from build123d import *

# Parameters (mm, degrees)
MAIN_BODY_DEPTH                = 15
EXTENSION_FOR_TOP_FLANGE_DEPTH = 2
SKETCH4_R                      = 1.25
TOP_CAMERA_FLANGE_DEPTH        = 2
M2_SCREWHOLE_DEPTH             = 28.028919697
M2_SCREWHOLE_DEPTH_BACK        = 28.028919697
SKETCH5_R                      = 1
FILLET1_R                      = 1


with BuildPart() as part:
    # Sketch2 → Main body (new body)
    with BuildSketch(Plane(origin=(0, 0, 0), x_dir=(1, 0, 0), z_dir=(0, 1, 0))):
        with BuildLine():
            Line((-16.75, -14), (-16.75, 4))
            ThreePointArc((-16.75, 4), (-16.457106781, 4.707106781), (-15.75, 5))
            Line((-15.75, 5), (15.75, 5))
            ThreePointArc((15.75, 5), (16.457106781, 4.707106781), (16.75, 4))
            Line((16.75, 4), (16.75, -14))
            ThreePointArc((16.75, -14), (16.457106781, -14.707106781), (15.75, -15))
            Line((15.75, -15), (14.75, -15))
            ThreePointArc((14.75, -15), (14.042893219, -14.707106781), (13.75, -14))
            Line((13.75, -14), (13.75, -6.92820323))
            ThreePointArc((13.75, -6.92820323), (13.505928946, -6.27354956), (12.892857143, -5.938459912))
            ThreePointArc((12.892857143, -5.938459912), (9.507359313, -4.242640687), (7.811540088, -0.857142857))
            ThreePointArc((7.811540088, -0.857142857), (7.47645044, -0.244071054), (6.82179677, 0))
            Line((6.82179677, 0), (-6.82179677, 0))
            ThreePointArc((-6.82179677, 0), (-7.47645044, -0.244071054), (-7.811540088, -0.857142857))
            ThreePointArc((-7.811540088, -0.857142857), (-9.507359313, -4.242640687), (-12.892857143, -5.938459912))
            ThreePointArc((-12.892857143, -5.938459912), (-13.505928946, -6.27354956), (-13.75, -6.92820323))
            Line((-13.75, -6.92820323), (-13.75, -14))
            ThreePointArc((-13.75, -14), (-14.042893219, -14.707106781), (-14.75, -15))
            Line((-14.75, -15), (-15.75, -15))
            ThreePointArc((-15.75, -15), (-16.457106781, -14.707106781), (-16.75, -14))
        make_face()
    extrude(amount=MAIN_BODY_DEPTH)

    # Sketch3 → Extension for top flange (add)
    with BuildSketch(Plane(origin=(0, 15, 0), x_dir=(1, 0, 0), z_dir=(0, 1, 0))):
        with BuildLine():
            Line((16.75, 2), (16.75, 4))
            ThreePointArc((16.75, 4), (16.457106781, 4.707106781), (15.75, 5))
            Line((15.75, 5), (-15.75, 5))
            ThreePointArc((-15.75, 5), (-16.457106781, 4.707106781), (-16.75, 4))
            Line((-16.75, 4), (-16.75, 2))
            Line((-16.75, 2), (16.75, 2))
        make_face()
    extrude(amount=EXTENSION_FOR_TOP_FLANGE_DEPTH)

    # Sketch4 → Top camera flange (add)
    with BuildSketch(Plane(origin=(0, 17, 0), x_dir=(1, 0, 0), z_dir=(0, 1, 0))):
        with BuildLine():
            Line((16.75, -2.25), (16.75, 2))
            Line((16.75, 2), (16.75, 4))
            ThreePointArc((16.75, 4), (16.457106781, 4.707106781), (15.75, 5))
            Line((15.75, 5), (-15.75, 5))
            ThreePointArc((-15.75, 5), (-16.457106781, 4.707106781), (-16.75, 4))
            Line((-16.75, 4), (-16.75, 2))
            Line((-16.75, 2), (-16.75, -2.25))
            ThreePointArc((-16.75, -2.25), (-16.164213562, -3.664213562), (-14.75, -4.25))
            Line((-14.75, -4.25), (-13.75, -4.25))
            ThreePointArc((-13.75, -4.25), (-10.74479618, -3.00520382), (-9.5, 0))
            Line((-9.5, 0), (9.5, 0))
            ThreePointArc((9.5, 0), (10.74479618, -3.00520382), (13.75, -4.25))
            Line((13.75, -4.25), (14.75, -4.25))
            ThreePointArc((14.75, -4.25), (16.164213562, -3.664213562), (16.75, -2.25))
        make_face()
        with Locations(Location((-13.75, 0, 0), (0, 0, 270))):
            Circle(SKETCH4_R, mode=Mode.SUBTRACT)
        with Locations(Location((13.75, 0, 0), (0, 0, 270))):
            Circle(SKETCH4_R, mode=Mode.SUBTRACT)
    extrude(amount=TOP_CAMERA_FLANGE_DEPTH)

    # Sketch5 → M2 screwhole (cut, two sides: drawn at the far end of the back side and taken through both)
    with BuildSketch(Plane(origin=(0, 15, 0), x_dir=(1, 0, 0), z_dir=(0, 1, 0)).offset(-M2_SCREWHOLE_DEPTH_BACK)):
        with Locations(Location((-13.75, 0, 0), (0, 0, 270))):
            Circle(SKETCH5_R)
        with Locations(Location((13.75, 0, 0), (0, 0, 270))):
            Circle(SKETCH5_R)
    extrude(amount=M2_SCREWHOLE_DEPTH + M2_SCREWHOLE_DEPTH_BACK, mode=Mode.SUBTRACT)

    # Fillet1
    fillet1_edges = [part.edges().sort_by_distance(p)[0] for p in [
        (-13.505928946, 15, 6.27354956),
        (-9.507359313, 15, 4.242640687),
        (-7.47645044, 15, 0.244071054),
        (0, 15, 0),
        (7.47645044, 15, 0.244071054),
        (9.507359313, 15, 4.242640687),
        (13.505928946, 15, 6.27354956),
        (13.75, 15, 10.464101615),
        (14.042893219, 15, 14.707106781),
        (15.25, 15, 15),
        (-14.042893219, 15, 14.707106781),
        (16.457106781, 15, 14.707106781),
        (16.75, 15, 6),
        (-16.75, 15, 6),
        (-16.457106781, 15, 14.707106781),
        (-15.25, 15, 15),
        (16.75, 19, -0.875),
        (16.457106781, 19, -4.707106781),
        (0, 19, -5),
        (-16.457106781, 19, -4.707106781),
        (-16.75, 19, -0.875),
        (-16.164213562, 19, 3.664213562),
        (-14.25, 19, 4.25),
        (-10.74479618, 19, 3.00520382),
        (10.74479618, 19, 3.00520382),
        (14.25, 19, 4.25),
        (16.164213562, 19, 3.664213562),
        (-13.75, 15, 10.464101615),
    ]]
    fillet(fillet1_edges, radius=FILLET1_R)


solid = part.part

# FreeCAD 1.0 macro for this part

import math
import FreeCAD as App
import Part
import Sketcher
from FreeCAD import Vector


def edges_at(feature, points):
    """Names of the edges that pass closest to the given points."""
    edges = feature.Shape.Edges
    near = lambda p: min(range(len(edges)), key=lambda i: edges[i].distToShape(Part.Vertex(*p))[0])
    return sorted({f"Edge{near(p) + 1}" for p in points})

doc = App.newDocument("Part")
params = doc.addObject("Spreadsheet::Sheet", "Params")
for row, (alias, value) in enumerate([
    ("sketch1_radius", "1 mm"),
    ("sketch1_radius2", "6 mm"),
    ("sketch1_width", "1 mm"),
    ("sketch1_height", "18 mm"),
    ("sketch1_width2", "31.5 mm"),
    ("pad1_length", "15 mm"),
    ("sketch2_radius", "1 mm"),
    ("sketch2_height", "2 mm"),
    ("sketch2_width", "31.5 mm"),
    ("pad2_length", "2 mm"),
    ("sketch3_radius", "1 mm"),
    ("sketch3_radius2", "2 mm"),
    ("sketch3_diameter", "2.5 mm"),
    ("sketch3_width", "1 mm"),
    ("sketch3_width2", "19 mm"),
    ("pad3_length", "2 mm"),
    ("sketch4_diameter", "2 mm"),
    ("fillet_radius", "1 mm"),
], start=1):
    params.set(f"A{row}", alias)
    params.set(f"B{row}", "=" + value)
    params.setAlias(f"B{row}", alias)

body = doc.addObject("PartDesign::Body", "Body")

# Sketch on XZ plane
sketch1 = body.newObject("Sketcher::SketchObject", "Sketch")
sketch1.AttachmentSupport = (doc.getObject("XZ_Plane"), [""])
sketch1.MapMode = "FlatFace"
sketch1.addGeometry([
    Part.LineSegment(Vector(-16.8, -4, 0), Vector(-16.8, 14, 0)),  # 0
    Part.ArcOfCircle(Part.Circle(Vector(-15.7, 14, 0), Vector(0, 0, 1), 1), math.radians(90), math.radians(180)),  # 1
    Part.LineSegment(Vector(-15.8, 15, 0), Vector(-14.8, 15, 0)),  # 2
    Part.ArcOfCircle(Part.Circle(Vector(-14.8, 14, 0), Vector(0, 0, 1), 1), math.radians(0), math.radians(90)),  # 3
    Part.LineSegment(Vector(-13.8, 14, 0), Vector(-13.8, 6.9, 0)),  # 4
    Part.ArcOfCircle(Part.Circle(Vector(-12.8, 6.9, 0), Vector(0, 0, 1), 1), math.radians(-180), math.radians(-98)),  # 5
    Part.ArcOfCircle(Part.Circle(Vector(-13.8, 0, 0), Vector(0, 0, 1), 6), math.radians(8), math.radians(82)),  # 6
    Part.ArcOfCircle(Part.Circle(Vector(-6.8, 1, 0), Vector(0, 0, 1), 1), math.radians(-172), math.radians(-90)),  # 7
    Part.LineSegment(Vector(-6.8, 0, 0), Vector(6.8, 0, 0)),  # 8
    Part.ArcOfCircle(Part.Circle(Vector(6.8, 1, 0), Vector(0, 0, 1), 1), math.radians(-90), math.radians(-8)),  # 9
    Part.ArcOfCircle(Part.Circle(Vector(13.8, 0, 0), Vector(0, 0, 1), 6), math.radians(98), math.radians(172)),  # 10
    Part.ArcOfCircle(Part.Circle(Vector(12.8, 6.9, 0), Vector(0, 0, 1), 1), math.radians(-82), math.radians(0)),  # 11
    Part.LineSegment(Vector(13.8, 6.9, 0), Vector(13.8, 14, 0)),  # 12
    Part.ArcOfCircle(Part.Circle(Vector(14.8, 14, 0), Vector(0, 0, 1), 1), math.radians(90), math.radians(180)),  # 13
    Part.LineSegment(Vector(14.8, 15, 0), Vector(15.8, 15, 0)),  # 14
    Part.ArcOfCircle(Part.Circle(Vector(15.7, 14, 0), Vector(0, 0, 1), 1), math.radians(0), math.radians(90)),  # 15
    Part.LineSegment(Vector(16.8, 14, 0), Vector(16.8, -4, 0)),  # 16
    Part.ArcOfCircle(Part.Circle(Vector(15.7, -4, 0), Vector(0, 0, 1), 1), math.radians(-90), math.radians(0)),  # 17
    Part.LineSegment(Vector(15.8, -5, 0), Vector(-15.8, -5, 0)),  # 18
    Part.ArcOfCircle(Part.Circle(Vector(-15.7, -4, 0), Vector(0, 0, 1), 1), math.radians(-180), math.radians(-90)),  # 19
], False)
sketch1.addConstraint([
    Sketcher.Constraint("Tangent", 0, 2, 1, 2),
    Sketcher.Constraint("Tangent", 1, 1, 2, 1),
    Sketcher.Constraint("Tangent", 2, 2, 3, 2),
    Sketcher.Constraint("Tangent", 3, 1, 4, 1),
    Sketcher.Constraint("Tangent", 4, 2, 5, 1),
    Sketcher.Constraint("Tangent", 5, 2, 6, 2),
    Sketcher.Constraint("Tangent", 6, 1, 7, 1),
    Sketcher.Constraint("Tangent", 7, 2, 8, 1),
    Sketcher.Constraint("Tangent", 8, 2, 9, 1),
    Sketcher.Constraint("Tangent", 9, 2, 10, 2),
    Sketcher.Constraint("Tangent", 10, 1, 11, 1),
    Sketcher.Constraint("Tangent", 11, 2, 12, 1),
    Sketcher.Constraint("Tangent", 12, 2, 13, 2),
    Sketcher.Constraint("Tangent", 13, 1, 14, 1),
    Sketcher.Constraint("Tangent", 14, 2, 15, 2),
    Sketcher.Constraint("Tangent", 15, 1, 16, 1),
    Sketcher.Constraint("Tangent", 16, 2, 17, 2),
    Sketcher.Constraint("Tangent", 17, 1, 18, 1),
    Sketcher.Constraint("Tangent", 18, 2, 19, 2),
    Sketcher.Constraint("Tangent", 19, 1, 0, 1),
    Sketcher.Constraint("Vertical", 0),
    Sketcher.Constraint("Horizontal", 2),
    Sketcher.Constraint("Vertical", 4),
    Sketcher.Constraint("Horizontal", 8),
    Sketcher.Constraint("Vertical", 12),
    Sketcher.Constraint("Horizontal", 14),
    Sketcher.Constraint("Vertical", 16),
    Sketcher.Constraint("Horizontal", 18),
    Sketcher.Constraint("Equal", 1, 3),
    Sketcher.Constraint("Equal", 3, 5),
    Sketcher.Constraint("Equal", 5, 7),
    Sketcher.Constraint("Equal", 7, 9),
    Sketcher.Constraint("Equal", 6, 10),
    Sketcher.Constraint("Equal", 9, 11),
    Sketcher.Constraint("Equal", 11, 13),
    Sketcher.Constraint("Equal", 13, 15),
    Sketcher.Constraint("Equal", 15, 17),
    Sketcher.Constraint("Equal", 17, 19),
    Sketcher.Constraint("Symmetric", 6, 3, 10, 3, -1, 1),
    Sketcher.Constraint("Symmetric", 7, 2, 8, 2, -1, 1),
    Sketcher.Constraint("Symmetric", 3, 3, 13, 3, -2),
    Sketcher.Constraint("Vertical", 6, 3, 3, 1),
    Sketcher.Constraint("Equal", 2, 14),
    Sketcher.Constraint("Radius", 1, 1.0),
    Sketcher.Constraint("Radius", 6, 6.0),
    Sketcher.Constraint("DistanceX", 2, 1, 2, 2, 1.0),
    Sketcher.Constraint("DistanceY", 0, 1, 0, 2, 18.0),
    Sketcher.Constraint("DistanceX", 18, 2, 18, 1, 31.5),
    Sketcher.Constraint("DistanceY", -1, 1, 1, 3, 14.0),
])
sketch1.setExpression("Constraints[43]", "Params.sketch1_radius")
sketch1.setExpression("Constraints[44]", "Params.sketch1_radius2")
sketch1.setExpression("Constraints[45]", "Params.sketch1_width")
sketch1.setExpression("Constraints[46]", "Params.sketch1_height")
sketch1.setExpression("Constraints[47]", "Params.sketch1_width2")
pad1 = body.newObject("PartDesign::Pad", "Pad")
pad1.Profile = sketch1
pad1.setExpression("Length", "Params.pad1_length")
pad1.Reversed = True

# Sketch on XZ plane
sketch2 = body.newObject("Sketcher::SketchObject", "Sketch001")
sketch2.AttachmentSupport = (doc.getObject("XZ_Plane"), [""])
sketch2.MapMode = "FlatFace"
sketch2.AttachmentOffset = App.Placement(Vector(0, 0, -15), App.Rotation())
sketch2.addGeometry([
    Part.LineSegment(Vector(16.8, -2, 0), Vector(16.8, -4, 0)),  # 0
    Part.ArcOfCircle(Part.Circle(Vector(15.7, -4, 0), Vector(0, 0, 1), 1), math.radians(-90), math.radians(0)),  # 1
    Part.LineSegment(Vector(15.8, -5, 0), Vector(-15.8, -5, 0)),  # 2
    Part.ArcOfCircle(Part.Circle(Vector(-15.7, -4, 0), Vector(0, 0, 1), 1), math.radians(-180), math.radians(-90)),  # 3
    Part.LineSegment(Vector(-16.8, -4, 0), Vector(-16.8, -2, 0)),  # 4
    Part.LineSegment(Vector(-16.8, -2, 0), Vector(16.8, -2, 0)),  # 5
], False)
sketch2.addConstraint([
    Sketcher.Constraint("Tangent", 0, 2, 1, 2),
    Sketcher.Constraint("Tangent", 1, 1, 2, 1),
    Sketcher.Constraint("Tangent", 2, 2, 3, 2),
    Sketcher.Constraint("Tangent", 3, 1, 4, 1),
    Sketcher.Constraint("Coincident", 4, 2, 5, 1),
    Sketcher.Constraint("Coincident", 5, 2, 0, 1),
    Sketcher.Constraint("Vertical", 0),
    Sketcher.Constraint("Horizontal", 2),
    Sketcher.Constraint("Vertical", 4),
    Sketcher.Constraint("Horizontal", 5),
    Sketcher.Constraint("Equal", 1, 3),
    Sketcher.Constraint("Radius", 1, 1.0),
    Sketcher.Constraint("DistanceY", 0, 2, 0, 1, 2.0),
    Sketcher.Constraint("DistanceX", 2, 2, 2, 1, 31.5),
    Sketcher.Constraint("DistanceY", 1, 3, -1, 1, 4.0),
    Sketcher.Constraint("DistanceX", -1, 1, 1, 3, 15.75),
])
sketch2.setExpression("Constraints[11]", "Params.sketch2_radius")
sketch2.setExpression("Constraints[12]", "Params.sketch2_height")
sketch2.setExpression("Constraints[13]", "Params.sketch2_width")
pad2 = body.newObject("PartDesign::Pad", "Pad001")
pad2.Profile = sketch2
pad2.setExpression("Length", "Params.pad2_length")
pad2.Reversed = True

# Sketch on XZ plane
sketch3 = body.newObject("Sketcher::SketchObject", "Sketch002")
sketch3.AttachmentSupport = (doc.getObject("XZ_Plane"), [""])
sketch3.MapMode = "FlatFace"
sketch3.AttachmentOffset = App.Placement(Vector(0, 0, -17), App.Rotation())
sketch3.addGeometry([
    Part.LineSegment(Vector(16.8, 2.2, 0), Vector(16.8, -4, 0)),  # 0
    Part.ArcOfCircle(Part.Circle(Vector(15.7, -4, 0), Vector(0, 0, 1), 1), math.radians(-90), math.radians(0)),  # 1
    Part.LineSegment(Vector(15.8, -5, 0), Vector(-15.8, -5, 0)),  # 2
    Part.ArcOfCircle(Part.Circle(Vector(-15.7, -4, 0), Vector(0, 0, 1), 1), math.radians(-180), math.radians(-90)),  # 3
    Part.LineSegment(Vector(-16.8, -4, 0), Vector(-16.8, 2.2, 0)),  # 4
    Part.ArcOfCircle(Part.Circle(Vector(-14.7, 2.2, 0), Vector(0, 0, 1), 2), math.radians(90), math.radians(180)),  # 5
    Part.LineSegment(Vector(-14.8, 4.2, 0), Vector(-13.8, 4.2, 0)),  # 6
    Part.ArcOfCircle(Part.Circle(Vector(-13.8, 0, 0), Vector(0, 0, 1), 4.2), math.radians(0), math.radians(90)),  # 7
    Part.LineSegment(Vector(-9.5, 0, 0), Vector(9.5, 0, 0)),  # 8
    Part.ArcOfCircle(Part.Circle(Vector(13.8, 0, 0), Vector(0, 0, 1), 4.2), math.radians(90), math.radians(180)),  # 9
    Part.LineSegment(Vector(13.8, 4.2, 0), Vector(14.8, 4.2, 0)),  # 10
    Part.ArcOfCircle(Part.Circle(Vector(14.7, 2.2, 0), Vector(0, 0, 1), 2), math.radians(0), math.radians(90)),  # 11
    Part.Circle(Vector(-13.8, 0, 0), Vector(0, 0, 1), 1.2),  # 12
    Part.Circle(Vector(13.8, 0, 0), Vector(0, 0, 1), 1.2),  # 13
], False)
sketch3.addConstraint([
    Sketcher.Constraint("Tangent", 0, 2, 1, 2),
    Sketcher.Constraint("Tangent", 1, 1, 2, 1),
    Sketcher.Constraint("Tangent", 2, 2, 3, 2),
    Sketcher.Constraint("Tangent", 3, 1, 4, 1),
    Sketcher.Constraint("Tangent", 4, 2, 5, 2),
    Sketcher.Constraint("Tangent", 5, 1, 6, 1),
    Sketcher.Constraint("Tangent", 6, 2, 7, 2),
    Sketcher.Constraint("Coincident", 7, 1, 8, 1),
    Sketcher.Constraint("Coincident", 8, 2, 9, 2),
    Sketcher.Constraint("Tangent", 9, 1, 10, 1),
    Sketcher.Constraint("Tangent", 10, 2, 11, 2),
    Sketcher.Constraint("Tangent", 11, 1, 0, 1),
    Sketcher.Constraint("Vertical", 0),
    Sketcher.Constraint("Horizontal", 2),
    Sketcher.Constraint("Vertical", 4),
    Sketcher.Constraint("Horizontal", 6),
    Sketcher.Constraint("Horizontal", 8),
    Sketcher.Constraint("Horizontal", 10),
    Sketcher.Constraint("Coincident", 12, 3, 7, 3),
    Sketcher.Constraint("Coincident", 13, 3, 9, 3),
    Sketcher.Constraint("Equal", 1, 3),
    Sketcher.Constraint("Equal", 7, 9),
    Sketcher.Constraint("Equal", 5, 11),
    Sketcher.Constraint("Equal", 12, 13),
    Sketcher.Constraint("Symmetric", 7, 3, 9, 3, -1, 1),
    Sketcher.Constraint("Symmetric", 5, 3, 11, 3, -2),
    Sketcher.Constraint("PointOnObject", 7, 1, -1),
    Sketcher.Constraint("Radius", 1, 1.0),
    Sketcher.Constraint("Radius", 5, 2.0),
    Sketcher.Constraint("Diameter", 12, 2.5),
    Sketcher.Constraint("DistanceX", 6, 1, 6, 2, 1.0),
    Sketcher.Constraint("DistanceX", 8, 1, 8, 2, 19.0),
    Sketcher.Constraint("Radius", 7, 4.25),
    Sketcher.Constraint("DistanceY", 1, 3, -1, 1, 4.0),
])
sketch3.setExpression("Constraints[27]", "Params.sketch3_radius")
sketch3.setExpression("Constraints[28]", "Params.sketch3_radius2")
sketch3.setExpression("Constraints[29]", "Params.sketch3_diameter")
sketch3.setExpression("Constraints[30]", "Params.sketch3_width")
sketch3.setExpression("Constraints[31]", "Params.sketch3_width2")
pad3 = body.newObject("PartDesign::Pad", "Pad002")
pad3.Profile = sketch3
pad3.setExpression("Length", "Params.pad3_length")
pad3.Reversed = True

# Sketch on XZ plane
sketch4 = body.newObject("Sketcher::SketchObject", "Sketch003")
sketch4.AttachmentSupport = (doc.getObject("XZ_Plane"), [""])
sketch4.MapMode = "FlatFace"
sketch4.AttachmentOffset = App.Placement(Vector(0, 0, -15), App.Rotation())
sketch4.addGeometry([
    Part.Circle(Vector(-13.8, 0, 0), Vector(0, 0, 1), 1),
    Part.Circle(Vector(13.8, 0, 0), Vector(0, 0, 1), 1),
], False)
sketch4.addConstraint([
    Sketcher.Constraint("Equal", 0, 1),
    Sketcher.Constraint("Symmetric", 0, 3, 1, 3, -1, 1),
    Sketcher.Constraint("PointOnObject", 0, 3, -1),
    Sketcher.Constraint("Diameter", 0, 2.0),
    Sketcher.Constraint("DistanceX", 0, 3, 1, 3, 27.5),
])
sketch4.setExpression("Constraints[3]", "Params.sketch4_diameter")
pocket1 = body.newObject("PartDesign::Pocket", "Pocket")
pocket1.Profile = sketch4
pocket1.Type = "ThroughAll"
pocket1.Midplane = True
doc.recompute()

fillet = body.newObject("PartDesign::Fillet", "Fillet")
fillet.Base = (pocket1, edges_at(pocket1, [
    (-13.506, 15, 6.274),
    (-9.507, 15, 4.243),
    (-7.476, 15, 0.244),
    (0, 15, 0),
    (7.476, 15, 0.244),
    (9.507, 15, 4.243),
    (13.506, 15, 6.274),
    (13.75, 15, 10.464),
    (14.043, 15, 14.707),
    (15.25, 15, 15),
    (-14.043, 15, 14.707),
    (16.457, 15, 14.707),
    (16.75, 15, 6),
    (-16.75, 15, 6),
    (-16.457, 15, 14.707),
    (-15.25, 15, 15),
    (16.75, 19, -0.875),
    (16.457, 19, -4.707),
    (0, 19, -5),
    (-16.457, 19, -4.707),
    (-16.75, 19, -0.875),
    (-16.164, 19, 3.664),
    (-14.25, 19, 4.25),
    (-10.745, 19, 3.005),
    (10.745, 19, 3.005),
    (14.25, 19, 4.25),
    (16.164, 19, 3.664),
    (-13.75, 15, 10.464),
]))
fillet.setExpression("Radius", "Params.fillet_radius")

doc.recompute()
